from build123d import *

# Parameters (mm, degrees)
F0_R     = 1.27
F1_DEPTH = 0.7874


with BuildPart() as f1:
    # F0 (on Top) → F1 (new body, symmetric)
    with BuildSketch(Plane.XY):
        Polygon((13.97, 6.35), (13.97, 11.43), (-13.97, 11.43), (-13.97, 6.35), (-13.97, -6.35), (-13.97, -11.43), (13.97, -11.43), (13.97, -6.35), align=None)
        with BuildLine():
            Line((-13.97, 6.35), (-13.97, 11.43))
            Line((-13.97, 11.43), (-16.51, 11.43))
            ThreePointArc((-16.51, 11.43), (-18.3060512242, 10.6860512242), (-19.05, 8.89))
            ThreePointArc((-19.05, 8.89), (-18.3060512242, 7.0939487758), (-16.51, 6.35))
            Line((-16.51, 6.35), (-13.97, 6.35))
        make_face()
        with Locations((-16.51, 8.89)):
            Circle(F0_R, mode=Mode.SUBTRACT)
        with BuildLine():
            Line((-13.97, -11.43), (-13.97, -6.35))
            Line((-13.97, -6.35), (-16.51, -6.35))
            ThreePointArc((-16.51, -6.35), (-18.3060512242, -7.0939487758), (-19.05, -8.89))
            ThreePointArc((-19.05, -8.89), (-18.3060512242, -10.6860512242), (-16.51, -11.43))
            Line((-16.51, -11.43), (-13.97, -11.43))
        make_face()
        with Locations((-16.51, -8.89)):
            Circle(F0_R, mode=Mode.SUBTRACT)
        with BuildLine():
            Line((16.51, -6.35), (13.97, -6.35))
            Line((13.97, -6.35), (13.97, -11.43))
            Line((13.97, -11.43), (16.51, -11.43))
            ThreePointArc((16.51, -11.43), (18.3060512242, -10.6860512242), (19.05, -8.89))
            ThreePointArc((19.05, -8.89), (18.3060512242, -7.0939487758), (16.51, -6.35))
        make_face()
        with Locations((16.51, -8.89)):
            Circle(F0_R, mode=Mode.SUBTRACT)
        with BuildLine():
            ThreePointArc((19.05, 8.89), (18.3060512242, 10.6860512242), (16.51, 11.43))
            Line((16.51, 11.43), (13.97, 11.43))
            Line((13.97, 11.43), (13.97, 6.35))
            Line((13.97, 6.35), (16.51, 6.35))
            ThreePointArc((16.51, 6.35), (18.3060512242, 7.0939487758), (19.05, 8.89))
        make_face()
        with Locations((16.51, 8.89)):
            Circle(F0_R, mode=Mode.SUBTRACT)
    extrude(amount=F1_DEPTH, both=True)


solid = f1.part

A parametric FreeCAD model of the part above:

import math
import FreeCAD as App
import Part
import Sketcher
Q = App.Units.Quantity

doc = App.newDocument("Part")
params = doc.addObject("Spreadsheet::Sheet", "Params")
for row, (alias, value) in enumerate([
    ("sketch1_diameter", "0.1 in"),
    ("sketch1_radius", "0.1 in"),
    ("sketch1_width", "0.1 in"),
    ("sketch1_width2", "1.3 in"),
    ("sketch1_height", "0.5 in"),
    ("pad1_length", "0.062 in"),
], start=1):
    params.set(f"A{row}", alias)
    params.set(f"B{row}", "=" + value)
    params.setAlias(f"B{row}", alias)

body = doc.addObject("PartDesign::Body", "Body")

# Sketch on XY plane
sketch1 = body.newObject("Sketcher::SketchObject", "Sketch")
sketch1.AttachmentSupport = (doc.getObject("XY_Plane"), [""])
sketch1.MapMode = "FlatFace"
sketch1.addGeometry([
    Part.ArcOfCircle(Part.Circle(App.Vector(-16.5, 8.9, 0), App.Vector(0, 0, 1), 2.5), math.radians(90), math.radians(180)),  # 0
    Part.ArcOfCircle(Part.Circle(App.Vector(-16.5, 8.9, 0), App.Vector(0, 0, 1), 2.5), math.radians(180), math.radians(270)),  # 1
    Part.LineSegment(App.Vector(-16.5, 6.3, 0), App.Vector(-14, 6.3, 0)),  # 2
    Part.LineSegment(App.Vector(-14, 6.3, 0), App.Vector(-14, -6.3, 0)),  # 3
    Part.LineSegment(App.Vector(-14, -6.3, 0), App.Vector(-16.5, -6.3, 0)),  # 4
    Part.ArcOfCircle(Part.Circle(App.Vector(-16.5, -8.9, 0), App.Vector(0, 0, 1), 2.5), math.radians(90), math.radians(180)),  # 5
    Part.ArcOfCircle(Part.Circle(App.Vector(-16.5, -8.9, 0), App.Vector(0, 0, 1), 2.5), math.radians(180), math.radians(270)),  # 6
    Part.LineSegment(App.Vector(-16.5, -11.4, 0), App.Vector(16.5, -11.4, 0)),  # 7
    Part.ArcOfCircle(Part.Circle(App.Vector(16.5, -8.9, 0), App.Vector(0, 0, 1), 2.5), math.radians(-90), math.radians(0)),  # 8
    Part.ArcOfCircle(Part.Circle(App.Vector(16.5, -8.9, 0), App.Vector(0, 0, 1), 2.5), math.radians(0), math.radians(90)),  # 9
    Part.LineSegment(App.Vector(16.5, -6.3, 0), App.Vector(14, -6.3, 0)),  # 10
    Part.LineSegment(App.Vector(14, -6.3, 0), App.Vector(14, 6.3, 0)),  # 11
    Part.LineSegment(App.Vector(14, 6.3, 0), App.Vector(16.5, 6.3, 0)),  # 12
    Part.ArcOfCircle(Part.Circle(App.Vector(16.5, 8.9, 0), App.Vector(0, 0, 1), 2.5), math.radians(-90), math.radians(0)),  # 13
    Part.ArcOfCircle(Part.Circle(App.Vector(16.5, 8.9, 0), App.Vector(0, 0, 1), 2.5), math.radians(0), math.radians(90)),  # 14
    Part.LineSegment(App.Vector(16.5, 11.4, 0), App.Vector(-16.5, 11.4, 0)),  # 15
    Part.Circle(App.Vector(-16.5, -8.9, 0), App.Vector(0, 0, 1), 1.3),  # 16
    Part.Circle(App.Vector(16.5, -8.9, 0), App.Vector(0, 0, 1), 1.3),  # 17
    Part.Circle(App.Vector(-16.5, 8.9, 0), App.Vector(0, 0, 1), 1.3),  # 18
    Part.Circle(App.Vector(16.5, 8.9, 0), App.Vector(0, 0, 1), 1.3),  # 19
], False)
sketch1.addConstraint([
    Sketcher.Constraint("Tangent", 0, 2, 1, 1),
    Sketcher.Constraint("Tangent", 1, 2, 2, 1),
    Sketcher.Constraint("Coincident", 2, 2, 3, 1),
    Sketcher.Constraint("Coincident", 3, 2, 4, 1),
    Sketcher.Constraint("Tangent", 4, 2, 5, 1),
    Sketcher.Constraint("Tangent", 5, 2, 6, 1),
    Sketcher.Constraint("Tangent", 6, 2, 7, 1),
    Sketcher.Constraint("Tangent", 7, 2, 8, 1),
    Sketcher.Constraint("Tangent", 8, 2, 9, 1),
    Sketcher.Constraint("Tangent", 9, 2, 10, 1),
    Sketcher.Constraint("Coincident", 10, 2, 11, 1),
    Sketcher.Constraint("Coincident", 11, 2, 12, 1),
    Sketcher.Constraint("Tangent", 12, 2, 13, 1),
    Sketcher.Constraint("Tangent", 13, 2, 14, 1),
    Sketcher.Constraint("Tangent", 14, 2, 15, 1),
    Sketcher.Constraint("Tangent", 15, 2, 0, 1),
    Sketcher.Constraint("Horizontal", 2),
    Sketcher.Constraint("Vertical", 3),
    Sketcher.Constraint("Horizontal", 4),
    Sketcher.Constraint("Horizontal", 7),
    Sketcher.Constraint("Horizontal", 10),
    Sketcher.Constraint("Vertical", 11),
    Sketcher.Constraint("Horizontal", 12),
    Sketcher.Constraint("Horizontal", 15),
    Sketcher.Constraint("Coincident", 16, 3, 5, 3),
    Sketcher.Constraint("Coincident", 17, 3, 8, 3),
    Sketcher.Constraint("Coincident", 18, 3, 0, 3),
    Sketcher.Constraint("Coincident", 19, 3, 13, 3),
    Sketcher.Constraint("Equal", 0, 1),
    Sketcher.Constraint("Equal", 1, 5),
    Sketcher.Constraint("Equal", 5, 6),
    Sketcher.Constraint("Equal", 6, 8),
    Sketcher.Constraint("Equal", 8, 9),
    Sketcher.Constraint("Equal", 9, 13),
    Sketcher.Constraint("Equal", 13, 14),
    Sketcher.Constraint("Equal", 16, 17),
    Sketcher.Constraint("Equal", 17, 18),
    Sketcher.Constraint("Equal", 18, 19),
    Sketcher.Constraint("Symmetric", 0, 3, 8, 3, -1, 1),
    Sketcher.Constraint("Symmetric", 5, 2, 13, 2, -1, 1),
    Sketcher.Constraint("Symmetric", 5, 2, 8, 2, -2),
    Sketcher.Constraint("Horizontal", 19, 3, 0, 2),
    Sketcher.Constraint("Horizontal", 17, 3, 5, 2),
    Sketcher.Constraint("Equal", 4, 10),
    Sketcher.Constraint("Diameter", 16, Q("0.1 in")),
    Sketcher.Constraint("Radius", 0, Q("0.1 in")),
    Sketcher.Constraint("DistanceX", 2, 1, 2, 2, Q("0.1 in")),
    Sketcher.Constraint("DistanceX", 7, 1, 7, 2, Q("1.3 in")),
    Sketcher.Constraint("DistanceY", 3, 2, 3, 1, Q("0.5 in")),
])
sketch1.setExpression("Constraints[44]", "Params.sketch1_diameter")
sketch1.setExpression("Constraints[45]", "Params.sketch1_radius")
sketch1.setExpression("Constraints[46]", "Params.sketch1_width")
sketch1.setExpression("Constraints[47]", "Params.sketch1_width2")
sketch1.setExpression("Constraints[48]", "Params.sketch1_height")
pad1 = body.newObject("PartDesign::Pad", "Pad")
pad1.Profile = sketch1
pad1.setExpression("Length", "Params.pad1_length")
pad1.Midplane = True

doc.recompute()
